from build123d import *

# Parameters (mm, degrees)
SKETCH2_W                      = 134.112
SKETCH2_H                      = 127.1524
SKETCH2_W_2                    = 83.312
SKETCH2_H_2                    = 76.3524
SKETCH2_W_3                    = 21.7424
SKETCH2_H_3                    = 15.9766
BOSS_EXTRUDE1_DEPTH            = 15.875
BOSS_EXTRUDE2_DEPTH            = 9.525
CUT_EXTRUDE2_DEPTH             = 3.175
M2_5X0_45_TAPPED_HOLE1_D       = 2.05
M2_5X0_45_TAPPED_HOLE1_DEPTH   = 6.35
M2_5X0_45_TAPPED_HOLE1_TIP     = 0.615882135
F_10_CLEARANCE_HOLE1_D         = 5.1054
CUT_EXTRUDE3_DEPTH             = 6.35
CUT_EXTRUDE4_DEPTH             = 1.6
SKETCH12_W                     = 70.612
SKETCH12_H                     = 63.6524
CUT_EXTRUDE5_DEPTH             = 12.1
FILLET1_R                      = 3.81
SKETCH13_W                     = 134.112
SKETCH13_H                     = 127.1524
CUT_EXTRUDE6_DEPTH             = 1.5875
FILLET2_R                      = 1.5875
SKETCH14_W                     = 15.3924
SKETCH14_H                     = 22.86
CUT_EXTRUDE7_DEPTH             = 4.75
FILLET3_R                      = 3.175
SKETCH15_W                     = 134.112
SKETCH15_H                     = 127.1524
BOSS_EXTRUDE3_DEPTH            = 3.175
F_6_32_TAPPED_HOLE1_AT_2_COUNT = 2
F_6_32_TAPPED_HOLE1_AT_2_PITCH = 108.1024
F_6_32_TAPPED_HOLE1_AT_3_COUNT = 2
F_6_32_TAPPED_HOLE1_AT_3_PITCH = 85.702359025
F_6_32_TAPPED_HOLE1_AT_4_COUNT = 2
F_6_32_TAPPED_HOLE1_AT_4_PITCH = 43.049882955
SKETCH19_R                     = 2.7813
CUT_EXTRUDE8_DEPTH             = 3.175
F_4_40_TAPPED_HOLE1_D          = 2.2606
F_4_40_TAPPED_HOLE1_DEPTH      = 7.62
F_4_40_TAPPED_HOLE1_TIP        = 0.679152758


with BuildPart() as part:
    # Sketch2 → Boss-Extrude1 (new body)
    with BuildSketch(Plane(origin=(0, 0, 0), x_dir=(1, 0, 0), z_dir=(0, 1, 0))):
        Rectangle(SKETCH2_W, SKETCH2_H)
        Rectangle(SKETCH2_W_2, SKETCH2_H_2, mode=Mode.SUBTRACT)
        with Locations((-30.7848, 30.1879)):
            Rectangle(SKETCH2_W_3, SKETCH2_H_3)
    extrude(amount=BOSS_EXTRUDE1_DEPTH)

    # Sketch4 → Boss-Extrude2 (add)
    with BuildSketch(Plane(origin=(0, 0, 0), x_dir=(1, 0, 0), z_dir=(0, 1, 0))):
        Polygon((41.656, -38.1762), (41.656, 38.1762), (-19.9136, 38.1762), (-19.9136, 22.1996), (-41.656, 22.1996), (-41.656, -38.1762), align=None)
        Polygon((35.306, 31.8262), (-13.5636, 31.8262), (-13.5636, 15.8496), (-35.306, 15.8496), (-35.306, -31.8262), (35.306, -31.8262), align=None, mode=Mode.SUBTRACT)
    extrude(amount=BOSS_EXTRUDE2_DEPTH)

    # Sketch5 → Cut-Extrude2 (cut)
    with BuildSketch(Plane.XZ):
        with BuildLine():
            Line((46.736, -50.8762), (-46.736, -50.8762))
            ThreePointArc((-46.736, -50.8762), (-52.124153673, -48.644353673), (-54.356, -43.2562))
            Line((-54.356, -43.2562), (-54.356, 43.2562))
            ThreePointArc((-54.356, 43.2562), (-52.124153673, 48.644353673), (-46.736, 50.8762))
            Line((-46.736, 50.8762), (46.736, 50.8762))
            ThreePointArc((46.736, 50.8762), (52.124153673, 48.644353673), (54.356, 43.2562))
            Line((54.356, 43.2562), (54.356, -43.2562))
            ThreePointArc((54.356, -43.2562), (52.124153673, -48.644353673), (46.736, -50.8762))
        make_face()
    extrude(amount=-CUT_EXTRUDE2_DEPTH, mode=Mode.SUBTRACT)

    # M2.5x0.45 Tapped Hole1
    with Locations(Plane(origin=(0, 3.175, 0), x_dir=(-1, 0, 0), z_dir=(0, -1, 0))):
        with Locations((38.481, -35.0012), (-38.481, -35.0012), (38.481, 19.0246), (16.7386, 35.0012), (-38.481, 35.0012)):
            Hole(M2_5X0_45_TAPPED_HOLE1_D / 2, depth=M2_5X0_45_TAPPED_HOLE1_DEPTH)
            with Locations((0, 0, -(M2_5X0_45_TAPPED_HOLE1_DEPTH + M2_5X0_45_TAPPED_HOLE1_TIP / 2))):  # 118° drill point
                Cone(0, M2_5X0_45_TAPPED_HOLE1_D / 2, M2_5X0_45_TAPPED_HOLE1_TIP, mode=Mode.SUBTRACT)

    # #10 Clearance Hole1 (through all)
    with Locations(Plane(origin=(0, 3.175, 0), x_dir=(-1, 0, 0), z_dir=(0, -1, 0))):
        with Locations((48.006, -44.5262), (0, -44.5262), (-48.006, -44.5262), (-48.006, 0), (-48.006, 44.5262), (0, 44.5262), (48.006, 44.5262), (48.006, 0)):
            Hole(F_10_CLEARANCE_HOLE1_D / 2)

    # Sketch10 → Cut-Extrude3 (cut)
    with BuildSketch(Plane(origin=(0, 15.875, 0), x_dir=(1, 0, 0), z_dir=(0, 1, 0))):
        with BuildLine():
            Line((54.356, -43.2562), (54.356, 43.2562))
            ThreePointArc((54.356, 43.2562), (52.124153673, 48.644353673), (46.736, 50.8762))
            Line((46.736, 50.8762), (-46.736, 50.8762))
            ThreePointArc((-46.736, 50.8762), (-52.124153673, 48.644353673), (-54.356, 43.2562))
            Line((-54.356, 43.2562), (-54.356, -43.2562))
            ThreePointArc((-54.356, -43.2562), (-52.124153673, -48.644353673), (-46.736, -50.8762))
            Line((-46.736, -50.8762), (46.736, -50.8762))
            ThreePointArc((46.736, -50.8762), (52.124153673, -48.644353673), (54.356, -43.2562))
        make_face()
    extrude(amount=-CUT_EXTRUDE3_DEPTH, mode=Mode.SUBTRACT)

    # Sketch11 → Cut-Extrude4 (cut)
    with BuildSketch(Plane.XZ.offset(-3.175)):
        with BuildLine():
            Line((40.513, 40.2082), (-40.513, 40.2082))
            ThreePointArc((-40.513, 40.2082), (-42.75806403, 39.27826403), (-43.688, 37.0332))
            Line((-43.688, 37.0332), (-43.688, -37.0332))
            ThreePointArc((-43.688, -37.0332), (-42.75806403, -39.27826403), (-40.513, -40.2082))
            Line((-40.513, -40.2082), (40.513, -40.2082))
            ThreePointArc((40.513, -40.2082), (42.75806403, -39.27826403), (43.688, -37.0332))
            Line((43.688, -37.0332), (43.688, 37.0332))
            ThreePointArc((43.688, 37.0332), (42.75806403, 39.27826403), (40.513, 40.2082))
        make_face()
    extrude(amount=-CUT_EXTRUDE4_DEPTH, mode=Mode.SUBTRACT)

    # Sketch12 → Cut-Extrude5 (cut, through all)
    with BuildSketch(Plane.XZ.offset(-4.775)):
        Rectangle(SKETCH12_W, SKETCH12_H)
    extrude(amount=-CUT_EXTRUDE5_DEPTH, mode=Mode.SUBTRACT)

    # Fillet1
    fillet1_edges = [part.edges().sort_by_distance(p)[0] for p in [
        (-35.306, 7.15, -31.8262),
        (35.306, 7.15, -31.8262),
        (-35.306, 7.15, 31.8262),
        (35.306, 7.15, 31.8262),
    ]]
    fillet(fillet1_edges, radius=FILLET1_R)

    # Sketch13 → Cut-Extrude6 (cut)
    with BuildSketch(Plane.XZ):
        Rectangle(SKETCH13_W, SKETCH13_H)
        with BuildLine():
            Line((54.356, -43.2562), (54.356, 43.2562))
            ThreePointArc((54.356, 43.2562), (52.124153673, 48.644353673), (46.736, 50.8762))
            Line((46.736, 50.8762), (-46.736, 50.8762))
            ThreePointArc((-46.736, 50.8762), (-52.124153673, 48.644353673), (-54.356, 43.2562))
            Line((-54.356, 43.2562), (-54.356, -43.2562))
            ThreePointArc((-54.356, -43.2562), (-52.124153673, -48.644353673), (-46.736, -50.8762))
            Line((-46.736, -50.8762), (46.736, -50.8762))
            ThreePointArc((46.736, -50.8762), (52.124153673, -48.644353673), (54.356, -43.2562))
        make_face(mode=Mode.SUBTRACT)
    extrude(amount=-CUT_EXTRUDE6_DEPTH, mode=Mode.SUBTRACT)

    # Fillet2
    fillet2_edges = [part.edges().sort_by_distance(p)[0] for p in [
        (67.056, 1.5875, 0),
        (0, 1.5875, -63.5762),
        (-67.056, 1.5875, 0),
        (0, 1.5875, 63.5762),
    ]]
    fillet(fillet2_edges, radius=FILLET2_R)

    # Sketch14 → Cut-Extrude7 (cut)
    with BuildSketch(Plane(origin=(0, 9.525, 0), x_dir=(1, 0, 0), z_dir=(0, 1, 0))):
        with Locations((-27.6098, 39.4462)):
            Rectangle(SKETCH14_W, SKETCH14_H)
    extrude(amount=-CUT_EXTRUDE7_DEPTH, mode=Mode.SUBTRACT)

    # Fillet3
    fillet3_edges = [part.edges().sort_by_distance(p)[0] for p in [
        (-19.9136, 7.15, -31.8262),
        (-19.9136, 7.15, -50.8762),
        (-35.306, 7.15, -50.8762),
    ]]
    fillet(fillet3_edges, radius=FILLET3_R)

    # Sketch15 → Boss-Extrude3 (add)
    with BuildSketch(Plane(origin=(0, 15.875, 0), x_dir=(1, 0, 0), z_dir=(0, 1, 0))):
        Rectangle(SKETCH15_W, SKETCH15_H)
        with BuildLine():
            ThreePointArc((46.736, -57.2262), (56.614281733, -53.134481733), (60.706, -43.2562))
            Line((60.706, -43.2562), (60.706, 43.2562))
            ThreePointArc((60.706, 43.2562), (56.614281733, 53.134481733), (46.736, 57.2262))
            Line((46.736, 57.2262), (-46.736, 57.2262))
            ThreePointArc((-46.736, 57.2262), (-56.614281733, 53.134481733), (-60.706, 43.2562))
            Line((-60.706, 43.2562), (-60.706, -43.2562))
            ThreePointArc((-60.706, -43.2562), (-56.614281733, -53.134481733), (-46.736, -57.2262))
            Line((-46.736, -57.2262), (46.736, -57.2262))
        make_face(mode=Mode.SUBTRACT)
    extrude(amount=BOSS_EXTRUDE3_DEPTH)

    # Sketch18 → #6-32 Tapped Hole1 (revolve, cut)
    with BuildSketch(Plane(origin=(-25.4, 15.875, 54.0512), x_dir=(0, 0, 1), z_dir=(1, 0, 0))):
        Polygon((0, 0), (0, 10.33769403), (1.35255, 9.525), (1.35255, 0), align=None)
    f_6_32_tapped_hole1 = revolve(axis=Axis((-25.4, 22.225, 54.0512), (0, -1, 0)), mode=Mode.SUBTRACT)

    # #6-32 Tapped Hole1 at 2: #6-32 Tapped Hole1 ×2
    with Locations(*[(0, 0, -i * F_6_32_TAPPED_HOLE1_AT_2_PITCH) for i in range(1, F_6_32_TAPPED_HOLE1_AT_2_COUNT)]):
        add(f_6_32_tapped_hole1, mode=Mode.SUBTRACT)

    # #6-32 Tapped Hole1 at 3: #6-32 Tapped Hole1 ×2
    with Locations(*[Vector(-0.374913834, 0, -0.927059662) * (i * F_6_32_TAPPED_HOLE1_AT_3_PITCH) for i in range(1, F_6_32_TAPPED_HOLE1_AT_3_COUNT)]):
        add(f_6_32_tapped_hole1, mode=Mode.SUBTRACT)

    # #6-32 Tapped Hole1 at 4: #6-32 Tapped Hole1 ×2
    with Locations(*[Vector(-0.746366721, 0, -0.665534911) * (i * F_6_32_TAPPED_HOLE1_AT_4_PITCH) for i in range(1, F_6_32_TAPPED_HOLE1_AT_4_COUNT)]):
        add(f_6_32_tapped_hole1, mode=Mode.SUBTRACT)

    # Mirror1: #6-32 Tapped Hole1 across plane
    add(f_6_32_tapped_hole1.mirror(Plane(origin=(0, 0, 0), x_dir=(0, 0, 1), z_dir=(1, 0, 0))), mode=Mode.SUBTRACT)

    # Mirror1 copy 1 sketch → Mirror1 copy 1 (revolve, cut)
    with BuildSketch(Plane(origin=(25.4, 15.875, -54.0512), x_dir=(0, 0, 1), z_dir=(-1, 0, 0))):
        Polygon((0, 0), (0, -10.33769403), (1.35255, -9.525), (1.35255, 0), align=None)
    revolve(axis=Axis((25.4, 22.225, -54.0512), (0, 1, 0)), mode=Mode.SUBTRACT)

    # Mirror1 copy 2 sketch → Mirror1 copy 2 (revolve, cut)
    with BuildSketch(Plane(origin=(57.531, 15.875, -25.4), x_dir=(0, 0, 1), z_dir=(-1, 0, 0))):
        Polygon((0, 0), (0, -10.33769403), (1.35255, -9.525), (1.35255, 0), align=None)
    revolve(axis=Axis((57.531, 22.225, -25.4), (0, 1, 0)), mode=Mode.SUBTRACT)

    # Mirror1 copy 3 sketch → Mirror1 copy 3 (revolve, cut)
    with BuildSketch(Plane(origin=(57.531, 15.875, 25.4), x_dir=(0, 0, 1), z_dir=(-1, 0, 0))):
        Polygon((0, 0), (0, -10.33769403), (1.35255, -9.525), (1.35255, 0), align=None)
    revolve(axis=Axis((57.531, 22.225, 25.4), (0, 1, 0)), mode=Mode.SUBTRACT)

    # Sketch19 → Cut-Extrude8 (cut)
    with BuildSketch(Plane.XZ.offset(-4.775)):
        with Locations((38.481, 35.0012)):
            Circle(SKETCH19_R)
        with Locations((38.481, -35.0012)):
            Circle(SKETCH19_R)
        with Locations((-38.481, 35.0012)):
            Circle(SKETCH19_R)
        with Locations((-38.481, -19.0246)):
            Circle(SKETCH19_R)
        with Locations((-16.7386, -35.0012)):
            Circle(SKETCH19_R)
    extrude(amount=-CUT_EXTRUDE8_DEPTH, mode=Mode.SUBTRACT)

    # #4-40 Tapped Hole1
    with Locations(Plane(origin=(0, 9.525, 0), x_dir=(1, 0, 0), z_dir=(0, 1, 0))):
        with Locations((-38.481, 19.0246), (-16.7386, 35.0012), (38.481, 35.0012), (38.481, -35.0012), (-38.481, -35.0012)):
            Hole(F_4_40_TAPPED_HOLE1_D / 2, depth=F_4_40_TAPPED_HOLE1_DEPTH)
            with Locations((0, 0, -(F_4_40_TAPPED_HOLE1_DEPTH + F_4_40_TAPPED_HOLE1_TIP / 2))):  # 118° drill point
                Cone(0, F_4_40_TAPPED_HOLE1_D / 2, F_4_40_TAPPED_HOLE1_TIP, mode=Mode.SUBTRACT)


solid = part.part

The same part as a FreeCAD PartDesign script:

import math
import FreeCAD as App
import Part
import Sketcher
from FreeCAD import Vector
Q = App.Units.Quantity


def edges_at(feature, points):
    """Names of the edges that pass closest to the given points."""
    edges = feature.Shape.Edges
    near = lambda p: min(range(len(edges)), key=lambda i: edges[i].distToShape(Part.Vertex(*p))[0])
    return sorted({f"Edge{near(p) + 1}" for p in points})

doc = App.newDocument("Part")
params = doc.addObject("Spreadsheet::Sheet", "Params")
for row, (alias, value) in enumerate([
    ("sketch1_width", "5.28 in"),
    ("sketch1_width2", "0.856 in"),
    ("sketch1_height", "5.006 in"),
    ("sketch1_height2", "2.377 in"),
    ("pad1_length", "0.625 in"),
    ("sketch2_width", "3.28 in"),
    ("sketch2_width2", "2.78 in"),
    ("sketch2_width3", "2.424 in"),
    ("sketch2_height", "3.006 in"),
    ("sketch2_height2", "0.629 in"),
    ("pad2_length", "0.375 in"),
    ("sketch3_radius", "0.3 in"),
    ("sketch3_width", "3.68 in"),
    ("sketch3_height", "3.406 in"),
    ("pocket1_length", "0.125 in"),
    ("hole_diameter", "2.05 mm"),
    ("hole_depth", "0.25 in"),
    ("sketch5_diameter", "0.201 in"),
    ("hole2_diameter", "0.201 in"),
    ("sketch6_radius", "0.3 in"),
    ("sketch6_width", "3.68 in"),
    ("sketch6_height", "3.406 in"),
    ("pocket2_length", "0.25 in"),
    ("sketch7_radius", "0.125 in"),
    ("sketch7_width", "3.19 in"),
    ("sketch7_height", "2.916 in"),
    ("pocket3_length", "1.6 mm"),
    ("sketch8_width", "2.78 in"),
    ("sketch8_height", "2.506 in"),
    ("fillet_radius", "0.15 in"),
    ("sketch9_radius", "0.3 in"),
    ("sketch9_width", "5.28 in"),
    ("sketch9_width2", "3.68 in"),
    ("sketch9_height", "5.006 in"),
    ("pocket5_length", "0.0625 in"),
    ("fillet2_radius", "0.0625 in"),
    ("sketch10_height", "0.9 in"),
    ("sketch10_width", "0.606 in"),
    ("pocket6_length", "4.75 mm"),
    ("fillet3_radius", "0.125 in"),
    ("sketch11_radius", "0.55 in"),
    ("sketch11_width", "5.28 in"),
    ("sketch11_width2", "3.68 in"),
    ("sketch11_height", "5.006 in"),
    ("pad3_length", "0.125 in"),
    ("sketch12_width", "0.375 in"),
    ("groove_angle", "360 deg"),
    ("linearpattern_pitch", "4.256 in"),
    ("linearpattern2_pitch", "85.702359 mm"),
    ("linearpattern3_pitch", "43.049883 mm"),
    ("sketch13_width", "0.375 in"),
    ("groove2_angle", "360 deg"),
    ("sketch14_width", "0.375 in"),
    ("groove3_angle", "360 deg"),
    ("sketch15_width", "0.375 in"),
    ("groove4_angle", "360 deg"),
    ("sketch16_diameter", "0.219 in"),
    ("pocket7_length", "0.125 in"),
    ("sketch17_diameter", "0.089 in"),
    ("hole3_diameter", "0.089 in"),
    ("hole3_depth", "0.3 in"),
], start=1):
    params.set(f"A{row}", alias)
    params.set(f"B{row}", "=" + value)
    params.setAlias(f"B{row}", alias)

body = doc.addObject("PartDesign::Body", "Body")

# Sketch on XZ plane
sketch1 = doc.addObject("Sketcher::SketchObject", "Sketch")
body.addObject(sketch1)
sketch1.AttachmentSupport = (doc.XZ_Plane, [""])
sketch1.MapMode = "FlatFace"
sketch1.addGeometry([
    Part.LineSegment(Vector(-67, -64, 0), Vector(-67, 64, 0)),  # 0
    Part.LineSegment(Vector(-67, 64, 0), Vector(67, 64, 0)),  # 1
    Part.LineSegment(Vector(67, 64, 0), Vector(67, -64, 0)),  # 2
    Part.LineSegment(Vector(67, -64, 0), Vector(-67, -64, 0)),  # 3
    Part.LineSegment(Vector(42, 38, 0), Vector(-42, 38, 0)),  # 4
    Part.LineSegment(Vector(-42, 38, 0), Vector(-42, -22, 0)),  # 5
    Part.LineSegment(Vector(-42, -22, 0), Vector(-20, -22, 0)),  # 6
    Part.LineSegment(Vector(-20, -22, 0), Vector(-20, -38, 0)),  # 7
    Part.LineSegment(Vector(-20, -38, 0), Vector(42, -38, 0)),  # 8
    Part.LineSegment(Vector(42, -38, 0), Vector(42, 38, 0)),  # 9
], False)
sketch1.addConstraint([
    Sketcher.Constraint("Coincident", 0, 2, 1, 1),
    Sketcher.Constraint("Coincident", 1, 2, 2, 1),
    Sketcher.Constraint("Coincident", 2, 2, 3, 1),
    Sketcher.Constraint("Coincident", 3, 2, 0, 1),
    Sketcher.Constraint("Coincident", 4, 2, 5, 1),
    Sketcher.Constraint("Coincident", 5, 2, 6, 1),
    Sketcher.Constraint("Coincident", 6, 2, 7, 1),
    Sketcher.Constraint("Coincident", 7, 2, 8, 1),
    Sketcher.Constraint("Coincident", 8, 2, 9, 1),
    Sketcher.Constraint("Coincident", 9, 2, 4, 1),
    Sketcher.Constraint("Vertical", 0),
    Sketcher.Constraint("Horizontal", 1),
    Sketcher.Constraint("Vertical", 2),
    Sketcher.Constraint("Horizontal", 3),
    Sketcher.Constraint("Horizontal", 4),
    Sketcher.Constraint("Vertical", 5),
    Sketcher.Constraint("Horizontal", 6),
    Sketcher.Constraint("Vertical", 7),
    Sketcher.Constraint("Horizontal", 8),
    Sketcher.Constraint("Vertical", 9),
    Sketcher.Constraint("Symmetric", 0, 2, 2, 2, -1, 1),
    Sketcher.Constraint("Symmetric", 4, 2, 8, 2, -1, 1),
    Sketcher.Constraint("DistanceX", 0, 2, 4, 2, Q("1 in")),
    Sketcher.Constraint("DistanceY", 4, 2, 0, 2, Q("1 in")),
    Sketcher.Constraint("DistanceX", 1, 1, 1, 2, Q("5.28 in")),
    Sketcher.Constraint("DistanceX", 6, 1, 6, 2, Q("0.856 in")),
    Sketcher.Constraint("DistanceY", 0, 1, 0, 2, Q("5.006 in")),
    Sketcher.Constraint("DistanceY", 5, 2, 5, 1, Q("2.377 in")),
])
sketch1.setExpression("Constraints[24]", "Params.sketch1_width")
sketch1.setExpression("Constraints[25]", "Params.sketch1_width2")
sketch1.setExpression("Constraints[26]", "Params.sketch1_height")
sketch1.setExpression("Constraints[27]", "Params.sketch1_height2")
pad1 = doc.addObject("PartDesign::Pad", "Pad")
body.addObject(pad1)
pad1.Profile = sketch1
pad1.setExpression("Length", "Params.pad1_length")
pad1.Reversed = True

# Sketch on XZ plane
sketch2 = doc.addObject("Sketcher::SketchObject", "Sketch001")
body.addObject(sketch2)
sketch2.AttachmentSupport = (doc.XZ_Plane, [""])
sketch2.MapMode = "FlatFace"
sketch2.addGeometry([
    Part.LineSegment(Vector(42, 38, 0), Vector(42, -38, 0)),  # 0
    Part.LineSegment(Vector(42, -38, 0), Vector(-20, -38, 0)),  # 1
    Part.LineSegment(Vector(-20, -38, 0), Vector(-20, -22, 0)),  # 2
    Part.LineSegment(Vector(-20, -22, 0), Vector(-42, -22, 0)),  # 3
    Part.LineSegment(Vector(-42, -22, 0), Vector(-42, 38, 0)),  # 4
    Part.LineSegment(Vector(-42, 38, 0), Vector(42, 38, 0)),  # 5
    Part.LineSegment(Vector(-14, -32, 0), Vector(35, -32, 0)),  # 6
    Part.LineSegment(Vector(35, -32, 0), Vector(35, 32, 0)),  # 7
    Part.LineSegment(Vector(35, 32, 0), Vector(-35, 32, 0)),  # 8
    Part.LineSegment(Vector(-35, 32, 0), Vector(-35, -16, 0)),  # 9
    Part.LineSegment(Vector(-35, -16, 0), Vector(-14, -16, 0)),  # 10
    Part.LineSegment(Vector(-14, -16, 0), Vector(-14, -32, 0)),  # 11
], False)
sketch2.addConstraint([
    Sketcher.Constraint("Coincident", 0, 2, 1, 1),
    Sketcher.Constraint("Coincident", 1, 2, 2, 1),
    Sketcher.Constraint("Coincident", 2, 2, 3, 1),
    Sketcher.Constraint("Coincident", 3, 2, 4, 1),
    Sketcher.Constraint("Coincident", 4, 2, 5, 1),
    Sketcher.Constraint("Coincident", 5, 2, 0, 1),
    Sketcher.Constraint("Coincident", 6, 2, 7, 1),
    Sketcher.Constraint("Coincident", 7, 2, 8, 1),
    Sketcher.Constraint("Coincident", 8, 2, 9, 1),
    Sketcher.Constraint("Coincident", 9, 2, 10, 1),
    Sketcher.Constraint("Coincident", 10, 2, 11, 1),
    Sketcher.Constraint("Coincident", 11, 2, 6, 1),
    Sketcher.Constraint("Vertical", 0),
    Sketcher.Constraint("Horizontal", 1),
    Sketcher.Constraint("Vertical", 2),
    Sketcher.Constraint("Horizontal", 3),
    Sketcher.Constraint("Vertical", 4),
    Sketcher.Constraint("Horizontal", 5),
    Sketcher.Constraint("Horizontal", 6),
    Sketcher.Constraint("Vertical", 7),
    Sketcher.Constraint("Horizontal", 8),
    Sketcher.Constraint("Vertical", 9),
    Sketcher.Constraint("Horizontal", 10),
    Sketcher.Constraint("Vertical", 11),
    Sketcher.Constraint("Symmetric", 0, 2, 4, 2, -1, 1),
    Sketcher.Constraint("Symmetric", 6, 2, 8, 2, -1, 1),
    Sketcher.Constraint("Equal", 3, 10),
    Sketcher.Constraint("Equal", 2, 11),
    Sketcher.Constraint("DistanceX", 5, 1, 5, 2, Q("3.28 in")),
    Sketcher.Constraint("DistanceX", 8, 2, 8, 1, Q("2.78 in")),
    Sketcher.Constraint("DistanceX", 1, 2, 1, 1, Q("2.424 in")),
    Sketcher.Constraint("DistanceY", 0, 2, 0, 1, Q("3.006 in")),
    Sketcher.Constraint("DistanceY", 2, 1, 2, 2, Q("0.629 in")),
    Sketcher.Constraint("DistanceY", 7, 1, 7, 2, Q("2.506 in")),
])
sketch2.setExpression("Constraints[28]", "Params.sketch2_width")
sketch2.setExpression("Constraints[29]", "Params.sketch2_width2")
sketch2.setExpression("Constraints[30]", "Params.sketch2_width3")
sketch2.setExpression("Constraints[31]", "Params.sketch2_height")
sketch2.setExpression("Constraints[32]", "Params.sketch2_height2")
pad2 = doc.addObject("PartDesign::Pad", "Pad001")
body.addObject(pad2)
pad2.Profile = sketch2
pad2.setExpression("Length", "Params.pad2_length")
pad2.Reversed = True

# Sketch on XZ plane
sketch3 = doc.addObject("Sketcher::SketchObject", "Sketch002")
body.addObject(sketch3)
sketch3.AttachmentSupport = (doc.XZ_Plane, [""])
sketch3.MapMode = "FlatFace"
sketch3.addGeometry([
    Part.LineSegment(Vector(-47, -51, 0), Vector(47, -51, 0)),  # 0
    Part.ArcOfCircle(Part.Circle(Vector(47, -43, 0), Vector(0, 0, 1), 8), math.radians(-90), math.radians(0)),  # 1
    Part.LineSegment(Vector(54, -43, 0), Vector(54, 43, 0)),  # 2
    Part.ArcOfCircle(Part.Circle(Vector(47, 43, 0), Vector(0, 0, 1), 8), math.radians(0), math.radians(90)),  # 3
    Part.LineSegment(Vector(47, 51, 0), Vector(-47, 51, 0)),  # 4
    Part.ArcOfCircle(Part.Circle(Vector(-47, 43, 0), Vector(0, 0, 1), 8), math.radians(90), math.radians(180)),  # 5
    Part.LineSegment(Vector(-54, 43, 0), Vector(-54, -43, 0)),  # 6
    Part.ArcOfCircle(Part.Circle(Vector(-47, -43, 0), Vector(0, 0, 1), 8), math.radians(180), math.radians(270)),  # 7
], False)
sketch3.addConstraint([
    Sketcher.Constraint("Tangent", 0, 2, 1, 1),
    Sketcher.Constraint("Tangent", 1, 2, 2, 1),
    Sketcher.Constraint("Tangent", 2, 2, 3, 1),
    Sketcher.Constraint("Tangent", 3, 2, 4, 1),
    Sketcher.Constraint("Tangent", 4, 2, 5, 1),
    Sketcher.Constraint("Tangent", 5, 2, 6, 1),
    Sketcher.Constraint("Tangent", 6, 2, 7, 1),
    Sketcher.Constraint("Tangent", 7, 2, 0, 1),
    Sketcher.Constraint("Horizontal", 0),
    Sketcher.Constraint("Vertical", 2),
    Sketcher.Constraint("Horizontal", 4),
    Sketcher.Constraint("Vertical", 6),
    Sketcher.Constraint("Equal", 1, 3),
    Sketcher.Constraint("Equal", 3, 5),
    Sketcher.Constraint("Equal", 5, 7),
    Sketcher.Constraint("Symmetric", 1, 3, 5, 3, -1, 1),
    Sketcher.Constraint("Radius", 1, Q("0.3 in")),
    Sketcher.Constraint("DistanceX", 0, 1, 0, 2, Q("3.68 in")),
    Sketcher.Constraint("DistanceY", 2, 1, 2, 2, Q("3.406 in")),
])
sketch3.setExpression("Constraints[16]", "Params.sketch3_radius")
sketch3.setExpression("Constraints[17]", "Params.sketch3_width")
sketch3.setExpression("Constraints[18]", "Params.sketch3_height")
pocket1 = doc.addObject("PartDesign::Pocket", "Pocket")
body.addObject(pocket1)
pocket1.Profile = sketch3
pocket1.setExpression("Length", "Params.pocket1_length")

# Sketch on XZ plane
sketch4 = doc.addObject("Sketcher::SketchObject", "Sketch003")
body.addObject(sketch4)
sketch4.AttachmentSupport = (doc.XZ_Plane, [""])
sketch4.MapMode = "FlatFace"
sketch4.AttachmentOffset = App.Placement(Vector(0, 0, -0.125 * 25.4), App.Rotation())
sketch4.addGeometry([
    Part.Circle(Vector(-38.5, 35, 0), Vector(0, 0, 1), 1),  # 0
    Part.Circle(Vector(38.5, 35, 0), Vector(0, 0, 1), 1),  # 1
    Part.Circle(Vector(-38.5, -19, 0), Vector(0, 0, 1), 1),  # 2
    Part.Circle(Vector(-16.7, -35, 0), Vector(0, 0, 1), 1),  # 3
    Part.Circle(Vector(38.5, -35, 0), Vector(0, 0, 1), 1),  # 4
], False)
sketch4.addConstraint([
    Sketcher.Constraint("Equal", 0, 1),
    Sketcher.Constraint("Equal", 1, 2),
    Sketcher.Constraint("Equal", 2, 3),
    Sketcher.Constraint("Equal", 3, 4),
    Sketcher.Constraint("Symmetric", 0, 3, 4, 3, -1, 1),
    Sketcher.Constraint("Symmetric", 0, 3, 1, 3, -2),
    Sketcher.Constraint("Horizontal", 3, 3, 4, 3),
    Sketcher.Constraint("Vertical", 0, 3, 2, 3),
    Sketcher.Constraint("Diameter", 0, Q("2.05 mm")),
    Sketcher.Constraint("DistanceX", 0, 3, 1, 3, Q("3.03 in")),
    Sketcher.Constraint("DistanceY", -1, 1, 0, 3, Q("1.378 in")),
    Sketcher.Constraint("DistanceY", 2, 3, -1, 1, Q("0.749 in")),
    Sketcher.Constraint("DistanceX", 3, 3, -1, 1, Q("0.659 in")),
])
doc.recompute()
hole = doc.addObject("PartDesign::Hole", "Hole")
body.addObject(hole)
hole.Profile = sketch4
hole.ThreadType = "None"
hole.setExpression("Diameter", "Params.hole_diameter")
hole.DepthType = "Dimension"
hole.setExpression("Depth", "Params.hole_depth")
hole.DrillPoint = "Angled"
hole.DrillPointAngle = 118

# Sketch on XZ plane
sketch5 = doc.addObject("Sketcher::SketchObject", "Sketch004")
body.addObject(sketch5)
sketch5.AttachmentSupport = (doc.XZ_Plane, [""])
sketch5.MapMode = "FlatFace"
sketch5.AttachmentOffset = App.Placement(Vector(0, 0, -0.125 * 25.4), App.Rotation())
sketch5.addGeometry([
    Part.Circle(Vector(-48, 44.5, 0), Vector(0, 0, 1), 2.6),  # 0
    Part.Circle(Vector(0, 44.5, 0), Vector(0, 0, 1), 2.6),  # 1
    Part.Circle(Vector(48, 44.5, 0), Vector(0, 0, 1), 2.6),  # 2
    Part.Circle(Vector(48, 0, 0), Vector(0, 0, 1), 2.6),  # 3
    Part.Circle(Vector(48, -44.5, 0), Vector(0, 0, 1), 2.6),  # 4
    Part.Circle(Vector(0, -44.5, 0), Vector(0, 0, 1), 2.6),  # 5
    Part.Circle(Vector(-48, -44.5, 0), Vector(0, 0, 1), 2.6),  # 6
    Part.Circle(Vector(-48, 0, 0), Vector(0, 0, 1), 2.6),  # 7
], False)
sketch5.addConstraint([
    Sketcher.Constraint("Equal", 0, 1),
    Sketcher.Constraint("Equal", 1, 2),
    Sketcher.Constraint("Equal", 2, 3),
    Sketcher.Constraint("Equal", 3, 4),
    Sketcher.Constraint("Equal", 4, 5),
    Sketcher.Constraint("Equal", 5, 6),
    Sketcher.Constraint("Equal", 6, 7),
    Sketcher.Constraint("Symmetric", 0, 3, 4, 3, -1, 1),
    Sketcher.Constraint("Symmetric", 1, 3, 5, 3, -1, 1),
    Sketcher.Constraint("Symmetric", 2, 3, 6, 3, -1, 1),
    Sketcher.Constraint("Symmetric", 3, 3, 7, 3, -1, 1),
    Sketcher.Constraint("Symmetric", 0, 3, 2, 3, -2),
    Sketcher.Constraint("PointOnObject", 1, 3, -2),
    Sketcher.Constraint("PointOnObject", 3, 3, -1),
    Sketcher.Constraint("Horizontal", 0, 3, 1, 3),
    Sketcher.Constraint("Vertical", 2, 3, 3, 3),
    Sketcher.Constraint("Diameter", 0, Q("0.201 in")),
    Sketcher.Constraint("DistanceX", 0, 3, -1, 1, Q("1.89 in")),
    Sketcher.Constraint("DistanceY", -1, 1, 0, 3, Q("1.753 in")),
])
sketch5.setExpression("Constraints[16]", "Params.sketch5_diameter")
doc.recompute()
hole2 = doc.addObject("PartDesign::Hole", "Hole001")
body.addObject(hole2)
hole2.Profile = sketch5
hole2.ThreadType = "None"
hole2.setExpression("Diameter", "Params.hole2_diameter")
hole2.DepthType = "ThroughAll"

# Sketch on XZ plane
sketch6 = doc.addObject("Sketcher::SketchObject", "Sketch005")
body.addObject(sketch6)
sketch6.AttachmentSupport = (doc.XZ_Plane, [""])
sketch6.MapMode = "FlatFace"
sketch6.AttachmentOffset = App.Placement(Vector(0, 0, -0.625 * 25.4), App.Rotation())
sketch6.addGeometry([
    Part.LineSegment(Vector(54, 43, 0), Vector(54, -43, 0)),  # 0
    Part.ArcOfCircle(Part.Circle(Vector(47, -43, 0), Vector(0, 0, 1), 8), math.radians(-90), math.radians(0)),  # 1
    Part.LineSegment(Vector(47, -51, 0), Vector(-47, -51, 0)),  # 2
    Part.ArcOfCircle(Part.Circle(Vector(-47, -43, 0), Vector(0, 0, 1), 8), math.radians(180), math.radians(270)),  # 3
    Part.LineSegment(Vector(-54, -43, 0), Vector(-54, 43, 0)),  # 4
    Part.ArcOfCircle(Part.Circle(Vector(-47, 43, 0), Vector(0, 0, 1), 8), math.radians(90), math.radians(180)),  # 5
    Part.LineSegment(Vector(-47, 51, 0), Vector(47, 51, 0)),  # 6
    Part.ArcOfCircle(Part.Circle(Vector(47, 43, 0), Vector(0, 0, 1), 8), math.radians(0), math.radians(90)),  # 7
], False)
sketch6.addConstraint([
    Sketcher.Constraint("Tangent", 0, 2, 1, 2),
    Sketcher.Constraint("Tangent", 1, 1, 2, 1),
    Sketcher.Constraint("Tangent", 2, 2, 3, 2),
    Sketcher.Constraint("Tangent", 3, 1, 4, 1),
    Sketcher.Constraint("Tangent", 4, 2, 5, 2),
    Sketcher.Constraint("Tangent", 5, 1, 6, 1),
    Sketcher.Constraint("Tangent", 6, 2, 7, 2),
    Sketcher.Constraint("Tangent", 7, 1, 0, 1),
    Sketcher.Constraint("Vertical", 0),
    Sketcher.Constraint("Horizontal", 2),
    Sketcher.Constraint("Vertical", 4),
    Sketcher.Constraint("Horizontal", 6),
    Sketcher.Constraint("Equal", 1, 3),
    Sketcher.Constraint("Equal", 3, 5),
    Sketcher.Constraint("Equal", 5, 7),
    Sketcher.Constraint("Symmetric", 1, 3, 5, 3, -1, 1),
    Sketcher.Constraint("Radius", 1, Q("0.3 in")),
    Sketcher.Constraint("DistanceX", 2, 2, 2, 1, Q("3.68 in")),
    Sketcher.Constraint("DistanceY", 0, 2, 0, 1, Q("3.406 in")),
])
sketch6.setExpression("Constraints[16]", "Params.sketch6_radius")
sketch6.setExpression("Constraints[17]", "Params.sketch6_width")
sketch6.setExpression("Constraints[18]", "Params.sketch6_height")
pocket2 = doc.addObject("PartDesign::Pocket", "Pocket001")
body.addObject(pocket2)
pocket2.Profile = sketch6
pocket2.setExpression("Length", "Params.pocket2_length")
pocket2.Reversed = True

# Sketch on XZ plane
sketch7 = doc.addObject("Sketcher::SketchObject", "Sketch006")
body.addObject(sketch7)
sketch7.AttachmentSupport = (doc.XZ_Plane, [""])
sketch7.MapMode = "FlatFace"
sketch7.AttachmentOffset = App.Placement(Vector(0, 0, -0.125 * 25.4), App.Rotation())
sketch7.addGeometry([
    Part.LineSegment(Vector(40.5, 40.2, 0), Vector(-40.5, 40.2, 0)),  # 0
    Part.ArcOfCircle(Part.Circle(Vector(-40.5, 37, 0), Vector(0, 0, 1), 3.2), math.radians(90), math.radians(180)),  # 1
    Part.LineSegment(Vector(-43.7, 37, 0), Vector(-43.7, -37, 0)),  # 2
    Part.ArcOfCircle(Part.Circle(Vector(-40.5, -37, 0), Vector(0, 0, 1), 3.2), math.radians(-180), math.radians(-90)),  # 3
    Part.LineSegment(Vector(-40.5, -40.2, 0), Vector(40.5, -40.2, 0)),  # 4
    Part.ArcOfCircle(Part.Circle(Vector(40.5, -37, 0), Vector(0, 0, 1), 3.2), math.radians(-90), math.radians(0)),  # 5
    Part.LineSegment(Vector(43.7, -37, 0), Vector(43.7, 37, 0)),  # 6
    Part.ArcOfCircle(Part.Circle(Vector(40.5, 37, 0), Vector(0, 0, 1), 3.2), math.radians(0), math.radians(90)),  # 7
], False)
sketch7.addConstraint([
    Sketcher.Constraint("Tangent", 0, 2, 1, 1),
    Sketcher.Constraint("Tangent", 1, 2, 2, 1),
    Sketcher.Constraint("Tangent", 2, 2, 3, 1),
    Sketcher.Constraint("Tangent", 3, 2, 4, 1),
    Sketcher.Constraint("Tangent", 4, 2, 5, 1),
    Sketcher.Constraint("Tangent", 5, 2, 6, 1),
    Sketcher.Constraint("Tangent", 6, 2, 7, 1),
    Sketcher.Constraint("Tangent", 7, 2, 0, 1),
    Sketcher.Constraint("Horizontal", 0),
    Sketcher.Constraint("Vertical", 2),
    Sketcher.Constraint("Horizontal", 4),
    Sketcher.Constraint("Vertical", 6),
    Sketcher.Constraint("Equal", 1, 3),
    Sketcher.Constraint("Equal", 3, 5),
    Sketcher.Constraint("Equal", 5, 7),
    Sketcher.Constraint("Symmetric", 1, 3, 5, 3, -1, 1),
    Sketcher.Constraint("Radius", 1, Q("0.125 in")),
    Sketcher.Constraint("DistanceX", 0, 2, 0, 1, Q("3.19 in")),
    Sketcher.Constraint("DistanceY", 2, 2, 2, 1, Q("2.916 in")),
])
sketch7.setExpression("Constraints[16]", "Params.sketch7_radius")
sketch7.setExpression("Constraints[17]", "Params.sketch7_width")
sketch7.setExpression("Constraints[18]", "Params.sketch7_height")
pocket3 = doc.addObject("PartDesign::Pocket", "Pocket002")
body.addObject(pocket3)
pocket3.Profile = sketch7
pocket3.setExpression("Length", "Params.pocket3_length")

# Sketch on XZ plane
sketch8 = doc.addObject("Sketcher::SketchObject", "Sketch007")
body.addObject(sketch8)
sketch8.AttachmentSupport = (doc.XZ_Plane, [""])
sketch8.MapMode = "FlatFace"
sketch8.AttachmentOffset = App.Placement(Vector(0, 0, -4.775), App.Rotation())
sketch8.addGeometry([
    Part.LineSegment(Vector(-35, 32, 0), Vector(-35, -32, 0)),
    Part.LineSegment(Vector(-35, -32, 0), Vector(35, -32, 0)),
    Part.LineSegment(Vector(35, -32, 0), Vector(35, 32, 0)),
    Part.LineSegment(Vector(35, 32, 0), Vector(-35, 32, 0)),
], False)
sketch8.addConstraint([
    Sketcher.Constraint("Coincident", 0, 2, 1, 1),
    Sketcher.Constraint("Coincident", 1, 2, 2, 1),
    Sketcher.Constraint("Coincident", 2, 2, 3, 1),
    Sketcher.Constraint("Coincident", 3, 2, 0, 1),
    Sketcher.Constraint("Vertical", 0),
    Sketcher.Constraint("Horizontal", 1),
    Sketcher.Constraint("Vertical", 2),
    Sketcher.Constraint("Horizontal", 3),
    Sketcher.Constraint("Symmetric", 0, 2, 2, 2, -1, 1),
    Sketcher.Constraint("DistanceX", 1, 1, 1, 2, Q("2.78 in")),
    Sketcher.Constraint("DistanceY", 0, 2, 0, 1, Q("2.506 in")),
])
sketch8.setExpression("Constraints[9]", "Params.sketch8_width")
sketch8.setExpression("Constraints[10]", "Params.sketch8_height")
pocket4 = doc.addObject("PartDesign::Pocket", "Pocket003")
body.addObject(pocket4)
pocket4.Profile = sketch8
pocket4.Type = "ThroughAll"
doc.recompute()

fillet = doc.addObject("PartDesign::Fillet", "Fillet")
body.addObject(fillet)
fillet.Base = (pocket4, edges_at(pocket4, [
    (-35.306, 7.15, -31.826),
    (35.306, 7.15, -31.826),
    (-35.306, 7.15, 31.826),
    (35.306, 7.15, 31.826),
]))
fillet.setExpression("Radius", "Params.fillet_radius")

# Sketch on XZ plane
sketch9 = doc.addObject("Sketcher::SketchObject", "Sketch008")
body.addObject(sketch9)
sketch9.AttachmentSupport = (doc.XZ_Plane, [""])
sketch9.MapMode = "FlatFace"
sketch9.addGeometry([
    Part.LineSegment(Vector(-67, 64, 0), Vector(-67, -64, 0)),  # 0
    Part.LineSegment(Vector(-67, -64, 0), Vector(67, -64, 0)),  # 1
    Part.LineSegment(Vector(67, -64, 0), Vector(67, 64, 0)),  # 2
    Part.LineSegment(Vector(67, 64, 0), Vector(-67, 64, 0)),  # 3
    Part.LineSegment(Vector(54, 43, 0), Vector(54, -43, 0)),  # 4
    Part.ArcOfCircle(Part.Circle(Vector(47, -43, 0), Vector(0, 0, 1), 8), math.radians(-90), math.radians(0)),  # 5
    Part.LineSegment(Vector(47, -51, 0), Vector(-47, -51, 0)),  # 6
    Part.ArcOfCircle(Part.Circle(Vector(-47, -43, 0), Vector(0, 0, 1), 8), math.radians(180), math.radians(270)),  # 7
    Part.LineSegment(Vector(-54, -43, 0), Vector(-54, 43, 0)),  # 8
    Part.ArcOfCircle(Part.Circle(Vector(-47, 43, 0), Vector(0, 0, 1), 8), math.radians(90), math.radians(180)),  # 9
    Part.LineSegment(Vector(-47, 51, 0), Vector(47, 51, 0)),  # 10
    Part.ArcOfCircle(Part.Circle(Vector(47, 43, 0), Vector(0, 0, 1), 8), math.radians(0), math.radians(90)),  # 11
], False)
sketch9.addConstraint([
    Sketcher.Constraint("Coincident", 0, 2, 1, 1),
    Sketcher.Constraint("Coincident", 1, 2, 2, 1),
    Sketcher.Constraint("Coincident", 2, 2, 3, 1),
    Sketcher.Constraint("Coincident", 3, 2, 0, 1),
    Sketcher.Constraint("Tangent", 4, 2, 5, 2),
    Sketcher.Constraint("Tangent", 5, 1, 6, 1),
    Sketcher.Constraint("Tangent", 6, 2, 7, 2),
    Sketcher.Constraint("Tangent", 7, 1, 8, 1),
    Sketcher.Constraint("Tangent", 8, 2, 9, 2),
    Sketcher.Constraint("Tangent", 9, 1, 10, 1),
    Sketcher.Constraint("Tangent", 10, 2, 11, 2),
    Sketcher.Constraint("Tangent", 11, 1, 4, 1),
    Sketcher.Constraint("Vertical", 0),
    Sketcher.Constraint("Horizontal", 1),
    Sketcher.Constraint("Vertical", 2),
    Sketcher.Constraint("Horizontal", 3),
    Sketcher.Constraint("Vertical", 4),
    Sketcher.Constraint("Horizontal", 6),
    Sketcher.Constraint("Vertical", 8),
    Sketcher.Constraint("Horizontal", 10),
    Sketcher.Constraint("Equal", 5, 7),
    Sketcher.Constraint("Equal", 7, 9),
    Sketcher.Constraint("Equal", 9, 11),
    Sketcher.Constraint("Symmetric", 5, 3, 9, 3, -1, 1),
    Sketcher.Constraint("Symmetric", 0, 2, 2, 2, -1, 1),
    Sketcher.Constraint("Radius", 5, Q("0.3 in")),
    Sketcher.Constraint("DistanceX", 1, 1, 1, 2, Q("5.28 in")),
    Sketcher.Constraint("DistanceX", 6, 2, 6, 1, Q("3.68 in")),
    Sketcher.Constraint("DistanceY", 0, 2, 7, 3, Q("0.8 in")),
    Sketcher.Constraint("DistanceY", 0, 2, 0, 1, Q("5.006 in")),
])
sketch9.setExpression("Constraints[25]", "Params.sketch9_radius")
sketch9.setExpression("Constraints[26]", "Params.sketch9_width")
sketch9.setExpression("Constraints[27]", "Params.sketch9_width2")
sketch9.setExpression("Constraints[29]", "Params.sketch9_height")
pocket5 = doc.addObject("PartDesign::Pocket", "Pocket004")
body.addObject(pocket5)
pocket5.Profile = sketch9
pocket5.setExpression("Length", "Params.pocket5_length")
doc.recompute()

fillet2 = doc.addObject("PartDesign::Fillet", "Fillet001")
body.addObject(fillet2)
fillet2.Base = (pocket5, edges_at(pocket5, [
    (67.056, 1.587, 0),
    (0, 1.587, -63.576),
    (-67.056, 1.587, 0),
    (0, 1.587, 63.576),
]))
fillet2.setExpression("Radius", "Params.fillet2_radius")

# Sketch on XZ plane
sketch10 = doc.addObject("Sketcher::SketchObject", "Sketch009")
body.addObject(sketch10)
sketch10.AttachmentSupport = (doc.XZ_Plane, [""])
sketch10.MapMode = "FlatFace"
sketch10.AttachmentOffset = App.Placement(Vector(0, 0, -0.375 * 25.4), App.Rotation())
sketch10.addGeometry([
    Part.LineSegment(Vector(-35, -51, 0), Vector(-35, -28, 0)),
    Part.LineSegment(Vector(-35, -28, 0), Vector(-20, -28, 0)),
    Part.LineSegment(Vector(-20, -28, 0), Vector(-20, -51, 0)),
    Part.LineSegment(Vector(-20, -51, 0), Vector(-35, -51, 0)),
], False)
sketch10.addConstraint([
    Sketcher.Constraint("Coincident", 0, 2, 1, 1),
    Sketcher.Constraint("Coincident", 1, 2, 2, 1),
    Sketcher.Constraint("Coincident", 2, 2, 3, 1),
    Sketcher.Constraint("Coincident", 3, 2, 0, 1),
    Sketcher.Constraint("Vertical", 0),
    Sketcher.Constraint("Horizontal", 1),
    Sketcher.Constraint("Vertical", 2),
    Sketcher.Constraint("Horizontal", 3),
    Sketcher.Constraint("DistanceY", 0, 1, 0, 2, Q("0.9 in")),
    Sketcher.Constraint("DistanceX", 1, 1, 1, 2, Q("0.606 in")),
    Sketcher.Constraint("DistanceX", 0, 2, -1, 1, Q("1.39 in")),
    Sketcher.Constraint("DistanceY", 0, 2, -1, 1, Q("1.103 in")),
])
sketch10.setExpression("Constraints[8]", "Params.sketch10_height")
sketch10.setExpression("Constraints[9]", "Params.sketch10_width")
pocket6 = doc.addObject("PartDesign::Pocket", "Pocket005")
body.addObject(pocket6)
pocket6.Profile = sketch10
pocket6.setExpression("Length", "Params.pocket6_length")
pocket6.Reversed = True
doc.recompute()

fillet3 = doc.addObject("PartDesign::Fillet", "Fillet002")
body.addObject(fillet3)
fillet3.Base = (pocket6, edges_at(pocket6, [(-19.914, 7.15, -31.826), (-19.914, 7.15, -50.876), (-35.306, 7.15, -50.876)]))
fillet3.setExpression("Radius", "Params.fillet3_radius")

# Sketch on XZ plane
sketch11 = doc.addObject("Sketcher::SketchObject", "Sketch010")
body.addObject(sketch11)
sketch11.AttachmentSupport = (doc.XZ_Plane, [""])
sketch11.MapMode = "FlatFace"
sketch11.AttachmentOffset = App.Placement(Vector(0, 0, -0.625 * 25.4), App.Rotation())
sketch11.addGeometry([
    Part.LineSegment(Vector(-67, -64, 0), Vector(-67, 64, 0)),  # 0
    Part.LineSegment(Vector(-67, 64, 0), Vector(67, 64, 0)),  # 1
    Part.LineSegment(Vector(67, 64, 0), Vector(67, -64, 0)),  # 2
    Part.LineSegment(Vector(67, -64, 0), Vector(-67, -64, 0)),  # 3
    Part.ArcOfCircle(Part.Circle(Vector(47, 43, 0), Vector(0, 0, 1), 14), math.radians(0), math.radians(90)),  # 4
    Part.LineSegment(Vector(47, 57, 0), Vector(-47, 57, 0)),  # 5
    Part.ArcOfCircle(Part.Circle(Vector(-47, 43, 0), Vector(0, 0, 1), 14), math.radians(90), math.radians(180)),  # 6
    Part.LineSegment(Vector(-61, 43, 0), Vector(-61, -43, 0)),  # 7
    Part.ArcOfCircle(Part.Circle(Vector(-47, -43, 0), Vector(0, 0, 1), 14), math.radians(-180), math.radians(-90)),  # 8
    Part.LineSegment(Vector(-47, -57, 0), Vector(47, -57, 0)),  # 9
    Part.ArcOfCircle(Part.Circle(Vector(47, -43, 0), Vector(0, 0, 1), 14), math.radians(-90), math.radians(0)),  # 10
    Part.LineSegment(Vector(61, -43, 0), Vector(61, 43, 0)),  # 11
], False)
sketch11.addConstraint([
    Sketcher.Constraint("Coincident", 0, 2, 1, 1),
    Sketcher.Constraint("Coincident", 1, 2, 2, 1),
    Sketcher.Constraint("Coincident", 2, 2, 3, 1),
    Sketcher.Constraint("Coincident", 3, 2, 0, 1),
    Sketcher.Constraint("Tangent", 4, 2, 5, 1),
    Sketcher.Constraint("Tangent", 5, 2, 6, 1),
    Sketcher.Constraint("Tangent", 6, 2, 7, 1),
    Sketcher.Constraint("Tangent", 7, 2, 8, 1),
    Sketcher.Constraint("Tangent", 8, 2, 9, 1),
    Sketcher.Constraint("Tangent", 9, 2, 10, 1),
    Sketcher.Constraint("Tangent", 10, 2, 11, 1),
    Sketcher.Constraint("Tangent", 11, 2, 4, 1),
    Sketcher.Constraint("Vertical", 0),
    Sketcher.Constraint("Horizontal", 1),
    Sketcher.Constraint("Vertical", 2),
    Sketcher.Constraint("Horizontal", 3),
    Sketcher.Constraint("Horizontal", 5),
    Sketcher.Constraint("Vertical", 7),
    Sketcher.Constraint("Horizontal", 9),
    Sketcher.Constraint("Vertical", 11),
    Sketcher.Constraint("Equal", 4, 6),
    Sketcher.Constraint("Equal", 6, 8),
    Sketcher.Constraint("Equal", 8, 10),
    Sketcher.Constraint("Symmetric", 4, 3, 8, 3, -1, 1),
    Sketcher.Constraint("Symmetric", 0, 2, 2, 2, -1, 1),
    Sketcher.Constraint("Radius", 4, Q("0.55 in")),
    Sketcher.Constraint("DistanceX", 1, 1, 1, 2, Q("5.28 in")),
    Sketcher.Constraint("DistanceX", 5, 2, 5, 1, Q("3.68 in")),
    Sketcher.Constraint("DistanceY", 6, 3, 0, 2, Q("0.8 in")),
    Sketcher.Constraint("DistanceY", 0, 1, 0, 2, Q("5.006 in")),
])
sketch11.setExpression("Constraints[25]", "Params.sketch11_radius")
sketch11.setExpression("Constraints[26]", "Params.sketch11_width")
sketch11.setExpression("Constraints[27]", "Params.sketch11_width2")
sketch11.setExpression("Constraints[29]", "Params.sketch11_height")
pad3 = doc.addObject("PartDesign::Pad", "Pad002")
body.addObject(pad3)
pad3.Profile = sketch11
pad3.setExpression("Length", "Params.pad3_length")
pad3.Reversed = True

# Sketch on YZ plane
sketch12 = doc.addObject("Sketcher::SketchObject", "Sketch011")
body.addObject(sketch12)
sketch12.AttachmentSupport = (doc.YZ_Plane, [""])
sketch12.MapMode = "FlatFace"
sketch12.AttachmentOffset = App.Placement(Vector(0, 0, -1 * 25.4), App.Rotation())
sketch12.addGeometry([
    Part.LineSegment(Vector(5.5, 54.1, 0), Vector(15.9, 54.1, 0)),
    Part.LineSegment(Vector(15.9, 54.1, 0), Vector(15.9, 55.4, 0)),
    Part.LineSegment(Vector(15.9, 55.4, 0), Vector(6.3, 55.4, 0)),
    Part.LineSegment(Vector(6.3, 55.4, 0), Vector(5.5, 54.1, 0)),
], False)
sketch12.addGeometry(Part.LineSegment(Vector(15.9, 54.1, 0), Vector(5.5, 54.1, 0)), True)  # axis
sketch12.addConstraint([
    Sketcher.Constraint("Coincident", 0, 2, 1, 1),
    Sketcher.Constraint("Coincident", 1, 2, 2, 1),
    Sketcher.Constraint("Coincident", 2, 2, 3, 1),
    Sketcher.Constraint("Coincident", 3, 2, 0, 1),
    Sketcher.Constraint("Horizontal", 0),
    Sketcher.Constraint("Vertical", 1),
    Sketcher.Constraint("Horizontal", 2),
    Sketcher.Constraint("Horizontal", 4),
    Sketcher.Constraint("Coincident", 4, 1, 0, 2),
    Sketcher.Constraint("Equal", 0, 4),
    Sketcher.Constraint("Angle", 3, Q("-121 deg")),
    Sketcher.Constraint("DistanceX", 2, 2, 2, 1, Q("0.375 in")),
    Sketcher.Constraint("DistanceX", -1, 1, 2, 2, Q("0.25 in")),
    Sketcher.Constraint("DistanceY", -1, 1, 0, 2, Q("2.128 in")),
    Sketcher.Constraint("DistanceY", 1, 1, 1, 2, Q("1.35255 mm")),
])
sketch12.setExpression("Constraints[11]", "Params.sketch12_width")
groove = doc.addObject("PartDesign::Groove", "Groove")
body.addObject(groove)
groove.Profile = sketch12
groove.ReferenceAxis = (sketch12, ["Axis0"])
groove.setExpression("Angle", "Params.groove_angle")
doc.recompute()

linearpattern = doc.addObject("PartDesign::LinearPattern", "LinearPattern")
body.addObject(linearpattern)
linearpattern.Originals = [groove]
linearpattern.Direction = (doc.Z_Axis, [""])
linearpattern.Mode = "offset"
linearpattern.setExpression("Offset", "Params.linearpattern_pitch")
linearpattern.Occurrences = 2
linearpattern.Reversed = True
body.Tip = linearpattern
doc.recompute()

datumline = doc.addObject("PartDesign::Line", "DatumLine")
body.addObject(datumline)
datumline.Placement = App.Placement(Vector(0, 0, 0), App.Rotation(Vector(0, 0, 1), Vector(-0.374913834, 0, -0.927059662)))
linearpattern2 = doc.addObject("PartDesign::LinearPattern", "LinearPattern001")
body.addObject(linearpattern2)
linearpattern2.Originals = [groove]
linearpattern2.Direction = (datumline, [""])
linearpattern2.Mode = "offset"
linearpattern2.setExpression("Offset", "Params.linearpattern2_pitch")
linearpattern2.Occurrences = 2
body.Tip = linearpattern2
doc.recompute()

datumline2 = doc.addObject("PartDesign::Line", "DatumLine001")
body.addObject(datumline2)
datumline2.Placement = App.Placement(Vector(0, 0, 0), App.Rotation(Vector(0, 0, 1), Vector(-0.746366721, 0, -0.665534911)))
linearpattern3 = doc.addObject("PartDesign::LinearPattern", "LinearPattern002")
body.addObject(linearpattern3)
linearpattern3.Originals = [groove]
linearpattern3.Direction = (datumline2, [""])
linearpattern3.Mode = "offset"
linearpattern3.setExpression("Offset", "Params.linearpattern3_pitch")
linearpattern3.Occurrences = 2
body.Tip = linearpattern3
doc.recompute()

mirrored = doc.addObject("PartDesign::Mirrored", "Mirrored")
body.addObject(mirrored)
mirrored.Originals = [groove]
mirrored.MirrorPlane = (doc.YZ_Plane, [""])
body.Tip = mirrored

# Sketch on YZ plane
sketch13 = doc.addObject("Sketcher::SketchObject", "Sketch012")
body.addObject(sketch13)
sketch13.AttachmentSupport = (doc.YZ_Plane, [""])
sketch13.MapMode = "FlatFace"
sketch13.AttachmentOffset = App.Placement(Vector(0, 0, 1 * 25.4), App.Rotation())
sketch13.addGeometry([
    Part.LineSegment(Vector(15.9, -54.1, 0), Vector(5.5, -54.1, 0)),
    Part.LineSegment(Vector(5.5, -54.1, 0), Vector(6.3, -52.7, 0)),
    Part.LineSegment(Vector(6.3, -52.7, 0), Vector(15.9, -52.7, 0)),
    Part.LineSegment(Vector(15.9, -52.7, 0), Vector(15.9, -54.1, 0)),
], False)
sketch13.addGeometry(Part.LineSegment(Vector(5.5, -54.1, 0), Vector(15.9, -54.1, 0)), True)  # axis
sketch13.addConstraint([
    Sketcher.Constraint("Coincident", 0, 2, 1, 1),
    Sketcher.Constraint("Coincident", 1, 2, 2, 1),
    Sketcher.Constraint("Coincident", 2, 2, 3, 1),
    Sketcher.Constraint("Coincident", 3, 2, 0, 1),
    Sketcher.Constraint("Horizontal", 0),
    Sketcher.Constraint("Horizontal", 2),
    Sketcher.Constraint("Vertical", 3),
    Sketcher.Constraint("Horizontal", 4),
    Sketcher.Constraint("Coincident", 4, 1, 0, 2),
    Sketcher.Constraint("Vertical", 2, 2, 4, 2),
    Sketcher.Constraint("Angle", 1, Q("59 deg")),
    Sketcher.Constraint("DistanceX", 2, 1, 2, 2, Q("0.375 in")),
    Sketcher.Constraint("DistanceX", -1, 1, 1, 2, Q("0.25 in")),
    Sketcher.Constraint("DistanceY", 0, 2, -1, 1, Q("2.128 in")),
    Sketcher.Constraint("DistanceY", 3, 2, 3, 1, Q("1.35255 mm")),
])
sketch13.setExpression("Constraints[11]", "Params.sketch13_width")
groove2 = doc.addObject("PartDesign::Groove", "Groove001")
body.addObject(groove2)
groove2.Profile = sketch13
groove2.ReferenceAxis = (sketch13, ["Axis0"])
groove2.setExpression("Angle", "Params.groove2_angle")

# Sketch on YZ plane
sketch14 = doc.addObject("Sketcher::SketchObject", "Sketch013")
body.addObject(sketch14)
sketch14.AttachmentSupport = (doc.YZ_Plane, [""])
sketch14.MapMode = "FlatFace"
sketch14.AttachmentOffset = App.Placement(Vector(0, 0, 2.265 * 25.4), App.Rotation())
sketch14.addGeometry([
    Part.LineSegment(Vector(15.9, -25.4, 0), Vector(5.5, -25.4, 0)),
    Part.LineSegment(Vector(5.5, -25.4, 0), Vector(6.3, -24, 0)),
    Part.LineSegment(Vector(6.3, -24, 0), Vector(15.9, -24, 0)),
    Part.LineSegment(Vector(15.9, -24, 0), Vector(15.9, -25.4, 0)),
], False)
sketch14.addGeometry(Part.LineSegment(Vector(5.5, -25.4, 0), Vector(15.9, -25.4, 0)), True)  # axis
sketch14.addConstraint([
    Sketcher.Constraint("Coincident", 0, 2, 1, 1),
    Sketcher.Constraint("Coincident", 1, 2, 2, 1),
    Sketcher.Constraint("Coincident", 2, 2, 3, 1),
    Sketcher.Constraint("Coincident", 3, 2, 0, 1),
    Sketcher.Constraint("Horizontal", 0),
    Sketcher.Constraint("Horizontal", 2),
    Sketcher.Constraint("Vertical", 3),
    Sketcher.Constraint("Horizontal", 4),
    Sketcher.Constraint("Coincident", 4, 1, 0, 2),
    Sketcher.Constraint("Vertical", 2, 2, 4, 2),
    Sketcher.Constraint("DistanceY", 0, 2, -1, 1, Q("1 in")),
    Sketcher.Constraint("Angle", 1, Q("59 deg")),
    Sketcher.Constraint("DistanceX", 2, 1, 2, 2, Q("0.375 in")),
    Sketcher.Constraint("DistanceX", -1, 1, 1, 2, Q("0.25 in")),
    Sketcher.Constraint("DistanceY", 3, 2, 3, 1, Q("1.35255 mm")),
])
sketch14.setExpression("Constraints[12]", "Params.sketch14_width")
groove3 = doc.addObject("PartDesign::Groove", "Groove002")
body.addObject(groove3)
groove3.Profile = sketch14
groove3.ReferenceAxis = (sketch14, ["Axis0"])
groove3.setExpression("Angle", "Params.groove3_angle")

# Sketch on YZ plane
sketch15 = doc.addObject("Sketcher::SketchObject", "Sketch014")
body.addObject(sketch15)
sketch15.AttachmentSupport = (doc.YZ_Plane, [""])
sketch15.MapMode = "FlatFace"
sketch15.AttachmentOffset = App.Placement(Vector(0, 0, 2.265 * 25.4), App.Rotation())
sketch15.addGeometry([
    Part.LineSegment(Vector(15.9, 25.4, 0), Vector(5.5, 25.4, 0)),
    Part.LineSegment(Vector(5.5, 25.4, 0), Vector(6.3, 26.8, 0)),
    Part.LineSegment(Vector(6.3, 26.8, 0), Vector(15.9, 26.8, 0)),
    Part.LineSegment(Vector(15.9, 26.8, 0), Vector(15.9, 25.4, 0)),
], False)
sketch15.addGeometry(Part.LineSegment(Vector(5.5, 25.4, 0), Vector(15.9, 25.4, 0)), True)  # axis
sketch15.addConstraint([
    Sketcher.Constraint("Coincident", 0, 2, 1, 1),
    Sketcher.Constraint("Coincident", 1, 2, 2, 1),
    Sketcher.Constraint("Coincident", 2, 2, 3, 1),
    Sketcher.Constraint("Coincident", 3, 2, 0, 1),
    Sketcher.Constraint("Horizontal", 0),
    Sketcher.Constraint("Horizontal", 2),
    Sketcher.Constraint("Vertical", 3),
    Sketcher.Constraint("Horizontal", 4),
    Sketcher.Constraint("Coincident", 4, 1, 0, 2),
    Sketcher.Constraint("Vertical", 2, 2, 4, 2),
    Sketcher.Constraint("DistanceY", -1, 1, 0, 2, Q("1 in")),
    Sketcher.Constraint("Angle", 1, Q("59 deg")),
    Sketcher.Constraint("DistanceX", 2, 1, 2, 2, Q("0.375 in")),
    Sketcher.Constraint("DistanceX", -1, 1, 1, 2, Q("0.25 in")),
    Sketcher.Constraint("DistanceY", 3, 2, 3, 1, Q("1.35255 mm")),
])
sketch15.setExpression("Constraints[12]", "Params.sketch15_width")
groove4 = doc.addObject("PartDesign::Groove", "Groove003")
body.addObject(groove4)
groove4.Profile = sketch15
groove4.ReferenceAxis = (sketch15, ["Axis0"])
groove4.setExpression("Angle", "Params.groove4_angle")

# Sketch on XZ plane
sketch16 = doc.addObject("Sketcher::SketchObject", "Sketch015")
body.addObject(sketch16)
sketch16.AttachmentSupport = (doc.XZ_Plane, [""])
sketch16.MapMode = "FlatFace"
sketch16.AttachmentOffset = App.Placement(Vector(0, 0, -4.775), App.Rotation())
sketch16.addGeometry([
    Part.Circle(Vector(38.5, 35, 0), Vector(0, 0, 1), 2.8),  # 0
    Part.Circle(Vector(38.5, -35, 0), Vector(0, 0, 1), 2.8),  # 1
    Part.Circle(Vector(-38.5, 35, 0), Vector(0, 0, 1), 2.8),  # 2
    Part.Circle(Vector(-38.5, -19, 0), Vector(0, 0, 1), 2.8),  # 3
    Part.Circle(Vector(-16.7, -35, 0), Vector(0, 0, 1), 2.8),  # 4
], False)
sketch16.addConstraint([
    Sketcher.Constraint("Equal", 0, 1),
    Sketcher.Constraint("Equal", 1, 2),
    Sketcher.Constraint("Equal", 2, 3),
    Sketcher.Constraint("Equal", 3, 4),
    Sketcher.Constraint("Symmetric", 1, 3, 2, 3, -1, 1),
    Sketcher.Constraint("Symmetric", 0, 3, 2, 3, -2),
    Sketcher.Constraint("Horizontal", 1, 3, 4, 3),
    Sketcher.Constraint("Vertical", 2, 3, 3, 3),
    Sketcher.Constraint("Diameter", 0, Q("0.219 in")),
    Sketcher.Constraint("DistanceX", 2, 3, 0, 3, Q("3.03 in")),
    Sketcher.Constraint("DistanceY", -1, 1, 0, 3, Q("1.378 in")),
    Sketcher.Constraint("DistanceY", 3, 3, -1, 1, Q("0.749 in")),
    Sketcher.Constraint("DistanceX", 4, 3, -1, 1, Q("0.659 in")),
])
sketch16.setExpression("Constraints[8]", "Params.sketch16_diameter")
pocket7 = doc.addObject("PartDesign::Pocket", "Pocket006")
body.addObject(pocket7)
pocket7.Profile = sketch16
pocket7.setExpression("Length", "Params.pocket7_length")

# Sketch on XZ plane
sketch17 = doc.addObject("Sketcher::SketchObject", "Sketch016")
body.addObject(sketch17)
sketch17.AttachmentSupport = (doc.XZ_Plane, [""])
sketch17.MapMode = "FlatFace"
sketch17.AttachmentOffset = App.Placement(Vector(0, 0, -0.375 * 25.4), App.Rotation())
sketch17.addGeometry([
    Part.Circle(Vector(-38.5, -19, 0), Vector(0, 0, 1), 1.1),  # 0
    Part.Circle(Vector(-16.7, -35, 0), Vector(0, 0, 1), 1.1),  # 1
    Part.Circle(Vector(38.5, -35, 0), Vector(0, 0, 1), 1.1),  # 2
    Part.Circle(Vector(38.5, 35, 0), Vector(0, 0, 1), 1.1),  # 3
    Part.Circle(Vector(-38.5, 35, 0), Vector(0, 0, 1), 1.1),  # 4
], False)
sketch17.addConstraint([
    Sketcher.Constraint("Equal", 0, 1),
    Sketcher.Constraint("Equal", 1, 2),
    Sketcher.Constraint("Equal", 2, 3),
    Sketcher.Constraint("Equal", 3, 4),
    Sketcher.Constraint("Symmetric", 2, 3, 4, 3, -1, 1),
    Sketcher.Constraint("Symmetric", 3, 3, 4, 3, -2),
    Sketcher.Constraint("Horizontal", 1, 3, 2, 3),
    Sketcher.Constraint("Vertical", 0, 3, 4, 3),
    Sketcher.Constraint("Diameter", 0, Q("0.089 in")),
    Sketcher.Constraint("DistanceX", 0, 3, 2, 3, Q("3.03 in")),
    Sketcher.Constraint("DistanceY", 0, 3, -1, 1, Q("0.749 in")),
    Sketcher.Constraint("DistanceX", 1, 3, -1, 1, Q("0.659 in")),
    Sketcher.Constraint("DistanceY", 1, 3, -1, 1, Q("1.378 in")),
])
sketch17.setExpression("Constraints[8]", "Params.sketch17_diameter")
doc.recompute()
hole3 = doc.addObject("PartDesign::Hole", "Hole002")
body.addObject(hole3)
hole3.Profile = sketch17
hole3.ThreadType = "None"
hole3.setExpression("Diameter", "Params.hole3_diameter")
hole3.DepthType = "Dimension"
hole3.setExpression("Depth", "Params.hole3_depth")
hole3.DrillPoint = "Angled"
hole3.DrillPointAngle = 118
hole3.Reversed = True

doc.recompute()
